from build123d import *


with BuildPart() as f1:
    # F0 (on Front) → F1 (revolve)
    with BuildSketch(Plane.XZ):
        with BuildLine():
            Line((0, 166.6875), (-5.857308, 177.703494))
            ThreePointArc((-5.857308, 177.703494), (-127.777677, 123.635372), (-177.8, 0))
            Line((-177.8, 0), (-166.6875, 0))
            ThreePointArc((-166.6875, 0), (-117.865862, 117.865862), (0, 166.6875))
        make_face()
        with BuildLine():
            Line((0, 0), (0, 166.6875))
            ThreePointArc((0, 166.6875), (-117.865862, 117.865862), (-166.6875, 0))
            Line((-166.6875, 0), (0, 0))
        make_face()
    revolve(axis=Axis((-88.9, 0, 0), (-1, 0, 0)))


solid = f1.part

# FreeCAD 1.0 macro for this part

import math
import FreeCAD as App
import Part
import Sketcher
from FreeCAD import Vector
Q = App.Units.Quantity

doc = App.newDocument("Part")
params = doc.addObject("Spreadsheet::Sheet", "Params")
for row, (alias, value) in enumerate([
    ("sketch1_radius", "7 in"),
    ("sketch1_height", "6.5625 in"),
    ("revolution_angle", "360 deg"),
], start=1):
    params.set(f"A{row}", alias)
    params.set(f"B{row}", "=" + value)
    params.setAlias(f"B{row}", alias)

body = doc.addObject("PartDesign::Body", "Body")

# Sketch on XZ plane
sketch1 = doc.addObject("Sketcher::SketchObject", "Sketch")
body.addObject(sketch1)
sketch1.AttachmentSupport = (doc.XZ_Plane, [""])
sketch1.MapMode = "FlatFace"
sketch1.addGeometry([
    Part.LineSegment(Vector(0, 167, 0), Vector(-6, 178, 0)),
    Part.ArcOfCircle(Part.Circle(Vector(0, 0, 0), Vector(0, 0, 1), 178), math.radians(92), math.radians(180)),
    Part.LineSegment(Vector(-178, 0, 0), Vector(0, 0, 0)),
    Part.LineSegment(Vector(0, 0, 0), Vector(0, 167, 0)),
], False)
sketch1.addConstraint([
    Sketcher.Constraint("Coincident", 0, 2, 1, 1),
    Sketcher.Constraint("Coincident", 1, 2, 2, 1),
    Sketcher.Constraint("Coincident", 2, 2, 3, 1),
    Sketcher.Constraint("Coincident", 3, 2, 0, 1),
    Sketcher.Constraint("Horizontal", 2),
    Sketcher.Constraint("Vertical", 3),
    Sketcher.Constraint("Coincident", 1, 3, -1, 1),
    Sketcher.Constraint("Coincident", 2, 2, -1, 1),
    Sketcher.Constraint("Radius", 1, Q("7 in")),
    Sketcher.Constraint("Angle", 0, Q("118 deg")),
    Sketcher.Constraint("DistanceY", 3, 1, 3, 2, Q("6.5625 in")),
])
sketch1.setExpression("Constraints[8]", "Params.sketch1_radius")
sketch1.setExpression("Constraints[10]", "Params.sketch1_height")
revolution = doc.addObject("PartDesign::Revolution", "Revolution")
body.addObject(revolution)
revolution.Profile = sketch1
revolution.ReferenceAxis = (sketch1, ["H_Axis"])
revolution.setExpression("Angle", "Params.revolution_angle")

doc.recompute()
